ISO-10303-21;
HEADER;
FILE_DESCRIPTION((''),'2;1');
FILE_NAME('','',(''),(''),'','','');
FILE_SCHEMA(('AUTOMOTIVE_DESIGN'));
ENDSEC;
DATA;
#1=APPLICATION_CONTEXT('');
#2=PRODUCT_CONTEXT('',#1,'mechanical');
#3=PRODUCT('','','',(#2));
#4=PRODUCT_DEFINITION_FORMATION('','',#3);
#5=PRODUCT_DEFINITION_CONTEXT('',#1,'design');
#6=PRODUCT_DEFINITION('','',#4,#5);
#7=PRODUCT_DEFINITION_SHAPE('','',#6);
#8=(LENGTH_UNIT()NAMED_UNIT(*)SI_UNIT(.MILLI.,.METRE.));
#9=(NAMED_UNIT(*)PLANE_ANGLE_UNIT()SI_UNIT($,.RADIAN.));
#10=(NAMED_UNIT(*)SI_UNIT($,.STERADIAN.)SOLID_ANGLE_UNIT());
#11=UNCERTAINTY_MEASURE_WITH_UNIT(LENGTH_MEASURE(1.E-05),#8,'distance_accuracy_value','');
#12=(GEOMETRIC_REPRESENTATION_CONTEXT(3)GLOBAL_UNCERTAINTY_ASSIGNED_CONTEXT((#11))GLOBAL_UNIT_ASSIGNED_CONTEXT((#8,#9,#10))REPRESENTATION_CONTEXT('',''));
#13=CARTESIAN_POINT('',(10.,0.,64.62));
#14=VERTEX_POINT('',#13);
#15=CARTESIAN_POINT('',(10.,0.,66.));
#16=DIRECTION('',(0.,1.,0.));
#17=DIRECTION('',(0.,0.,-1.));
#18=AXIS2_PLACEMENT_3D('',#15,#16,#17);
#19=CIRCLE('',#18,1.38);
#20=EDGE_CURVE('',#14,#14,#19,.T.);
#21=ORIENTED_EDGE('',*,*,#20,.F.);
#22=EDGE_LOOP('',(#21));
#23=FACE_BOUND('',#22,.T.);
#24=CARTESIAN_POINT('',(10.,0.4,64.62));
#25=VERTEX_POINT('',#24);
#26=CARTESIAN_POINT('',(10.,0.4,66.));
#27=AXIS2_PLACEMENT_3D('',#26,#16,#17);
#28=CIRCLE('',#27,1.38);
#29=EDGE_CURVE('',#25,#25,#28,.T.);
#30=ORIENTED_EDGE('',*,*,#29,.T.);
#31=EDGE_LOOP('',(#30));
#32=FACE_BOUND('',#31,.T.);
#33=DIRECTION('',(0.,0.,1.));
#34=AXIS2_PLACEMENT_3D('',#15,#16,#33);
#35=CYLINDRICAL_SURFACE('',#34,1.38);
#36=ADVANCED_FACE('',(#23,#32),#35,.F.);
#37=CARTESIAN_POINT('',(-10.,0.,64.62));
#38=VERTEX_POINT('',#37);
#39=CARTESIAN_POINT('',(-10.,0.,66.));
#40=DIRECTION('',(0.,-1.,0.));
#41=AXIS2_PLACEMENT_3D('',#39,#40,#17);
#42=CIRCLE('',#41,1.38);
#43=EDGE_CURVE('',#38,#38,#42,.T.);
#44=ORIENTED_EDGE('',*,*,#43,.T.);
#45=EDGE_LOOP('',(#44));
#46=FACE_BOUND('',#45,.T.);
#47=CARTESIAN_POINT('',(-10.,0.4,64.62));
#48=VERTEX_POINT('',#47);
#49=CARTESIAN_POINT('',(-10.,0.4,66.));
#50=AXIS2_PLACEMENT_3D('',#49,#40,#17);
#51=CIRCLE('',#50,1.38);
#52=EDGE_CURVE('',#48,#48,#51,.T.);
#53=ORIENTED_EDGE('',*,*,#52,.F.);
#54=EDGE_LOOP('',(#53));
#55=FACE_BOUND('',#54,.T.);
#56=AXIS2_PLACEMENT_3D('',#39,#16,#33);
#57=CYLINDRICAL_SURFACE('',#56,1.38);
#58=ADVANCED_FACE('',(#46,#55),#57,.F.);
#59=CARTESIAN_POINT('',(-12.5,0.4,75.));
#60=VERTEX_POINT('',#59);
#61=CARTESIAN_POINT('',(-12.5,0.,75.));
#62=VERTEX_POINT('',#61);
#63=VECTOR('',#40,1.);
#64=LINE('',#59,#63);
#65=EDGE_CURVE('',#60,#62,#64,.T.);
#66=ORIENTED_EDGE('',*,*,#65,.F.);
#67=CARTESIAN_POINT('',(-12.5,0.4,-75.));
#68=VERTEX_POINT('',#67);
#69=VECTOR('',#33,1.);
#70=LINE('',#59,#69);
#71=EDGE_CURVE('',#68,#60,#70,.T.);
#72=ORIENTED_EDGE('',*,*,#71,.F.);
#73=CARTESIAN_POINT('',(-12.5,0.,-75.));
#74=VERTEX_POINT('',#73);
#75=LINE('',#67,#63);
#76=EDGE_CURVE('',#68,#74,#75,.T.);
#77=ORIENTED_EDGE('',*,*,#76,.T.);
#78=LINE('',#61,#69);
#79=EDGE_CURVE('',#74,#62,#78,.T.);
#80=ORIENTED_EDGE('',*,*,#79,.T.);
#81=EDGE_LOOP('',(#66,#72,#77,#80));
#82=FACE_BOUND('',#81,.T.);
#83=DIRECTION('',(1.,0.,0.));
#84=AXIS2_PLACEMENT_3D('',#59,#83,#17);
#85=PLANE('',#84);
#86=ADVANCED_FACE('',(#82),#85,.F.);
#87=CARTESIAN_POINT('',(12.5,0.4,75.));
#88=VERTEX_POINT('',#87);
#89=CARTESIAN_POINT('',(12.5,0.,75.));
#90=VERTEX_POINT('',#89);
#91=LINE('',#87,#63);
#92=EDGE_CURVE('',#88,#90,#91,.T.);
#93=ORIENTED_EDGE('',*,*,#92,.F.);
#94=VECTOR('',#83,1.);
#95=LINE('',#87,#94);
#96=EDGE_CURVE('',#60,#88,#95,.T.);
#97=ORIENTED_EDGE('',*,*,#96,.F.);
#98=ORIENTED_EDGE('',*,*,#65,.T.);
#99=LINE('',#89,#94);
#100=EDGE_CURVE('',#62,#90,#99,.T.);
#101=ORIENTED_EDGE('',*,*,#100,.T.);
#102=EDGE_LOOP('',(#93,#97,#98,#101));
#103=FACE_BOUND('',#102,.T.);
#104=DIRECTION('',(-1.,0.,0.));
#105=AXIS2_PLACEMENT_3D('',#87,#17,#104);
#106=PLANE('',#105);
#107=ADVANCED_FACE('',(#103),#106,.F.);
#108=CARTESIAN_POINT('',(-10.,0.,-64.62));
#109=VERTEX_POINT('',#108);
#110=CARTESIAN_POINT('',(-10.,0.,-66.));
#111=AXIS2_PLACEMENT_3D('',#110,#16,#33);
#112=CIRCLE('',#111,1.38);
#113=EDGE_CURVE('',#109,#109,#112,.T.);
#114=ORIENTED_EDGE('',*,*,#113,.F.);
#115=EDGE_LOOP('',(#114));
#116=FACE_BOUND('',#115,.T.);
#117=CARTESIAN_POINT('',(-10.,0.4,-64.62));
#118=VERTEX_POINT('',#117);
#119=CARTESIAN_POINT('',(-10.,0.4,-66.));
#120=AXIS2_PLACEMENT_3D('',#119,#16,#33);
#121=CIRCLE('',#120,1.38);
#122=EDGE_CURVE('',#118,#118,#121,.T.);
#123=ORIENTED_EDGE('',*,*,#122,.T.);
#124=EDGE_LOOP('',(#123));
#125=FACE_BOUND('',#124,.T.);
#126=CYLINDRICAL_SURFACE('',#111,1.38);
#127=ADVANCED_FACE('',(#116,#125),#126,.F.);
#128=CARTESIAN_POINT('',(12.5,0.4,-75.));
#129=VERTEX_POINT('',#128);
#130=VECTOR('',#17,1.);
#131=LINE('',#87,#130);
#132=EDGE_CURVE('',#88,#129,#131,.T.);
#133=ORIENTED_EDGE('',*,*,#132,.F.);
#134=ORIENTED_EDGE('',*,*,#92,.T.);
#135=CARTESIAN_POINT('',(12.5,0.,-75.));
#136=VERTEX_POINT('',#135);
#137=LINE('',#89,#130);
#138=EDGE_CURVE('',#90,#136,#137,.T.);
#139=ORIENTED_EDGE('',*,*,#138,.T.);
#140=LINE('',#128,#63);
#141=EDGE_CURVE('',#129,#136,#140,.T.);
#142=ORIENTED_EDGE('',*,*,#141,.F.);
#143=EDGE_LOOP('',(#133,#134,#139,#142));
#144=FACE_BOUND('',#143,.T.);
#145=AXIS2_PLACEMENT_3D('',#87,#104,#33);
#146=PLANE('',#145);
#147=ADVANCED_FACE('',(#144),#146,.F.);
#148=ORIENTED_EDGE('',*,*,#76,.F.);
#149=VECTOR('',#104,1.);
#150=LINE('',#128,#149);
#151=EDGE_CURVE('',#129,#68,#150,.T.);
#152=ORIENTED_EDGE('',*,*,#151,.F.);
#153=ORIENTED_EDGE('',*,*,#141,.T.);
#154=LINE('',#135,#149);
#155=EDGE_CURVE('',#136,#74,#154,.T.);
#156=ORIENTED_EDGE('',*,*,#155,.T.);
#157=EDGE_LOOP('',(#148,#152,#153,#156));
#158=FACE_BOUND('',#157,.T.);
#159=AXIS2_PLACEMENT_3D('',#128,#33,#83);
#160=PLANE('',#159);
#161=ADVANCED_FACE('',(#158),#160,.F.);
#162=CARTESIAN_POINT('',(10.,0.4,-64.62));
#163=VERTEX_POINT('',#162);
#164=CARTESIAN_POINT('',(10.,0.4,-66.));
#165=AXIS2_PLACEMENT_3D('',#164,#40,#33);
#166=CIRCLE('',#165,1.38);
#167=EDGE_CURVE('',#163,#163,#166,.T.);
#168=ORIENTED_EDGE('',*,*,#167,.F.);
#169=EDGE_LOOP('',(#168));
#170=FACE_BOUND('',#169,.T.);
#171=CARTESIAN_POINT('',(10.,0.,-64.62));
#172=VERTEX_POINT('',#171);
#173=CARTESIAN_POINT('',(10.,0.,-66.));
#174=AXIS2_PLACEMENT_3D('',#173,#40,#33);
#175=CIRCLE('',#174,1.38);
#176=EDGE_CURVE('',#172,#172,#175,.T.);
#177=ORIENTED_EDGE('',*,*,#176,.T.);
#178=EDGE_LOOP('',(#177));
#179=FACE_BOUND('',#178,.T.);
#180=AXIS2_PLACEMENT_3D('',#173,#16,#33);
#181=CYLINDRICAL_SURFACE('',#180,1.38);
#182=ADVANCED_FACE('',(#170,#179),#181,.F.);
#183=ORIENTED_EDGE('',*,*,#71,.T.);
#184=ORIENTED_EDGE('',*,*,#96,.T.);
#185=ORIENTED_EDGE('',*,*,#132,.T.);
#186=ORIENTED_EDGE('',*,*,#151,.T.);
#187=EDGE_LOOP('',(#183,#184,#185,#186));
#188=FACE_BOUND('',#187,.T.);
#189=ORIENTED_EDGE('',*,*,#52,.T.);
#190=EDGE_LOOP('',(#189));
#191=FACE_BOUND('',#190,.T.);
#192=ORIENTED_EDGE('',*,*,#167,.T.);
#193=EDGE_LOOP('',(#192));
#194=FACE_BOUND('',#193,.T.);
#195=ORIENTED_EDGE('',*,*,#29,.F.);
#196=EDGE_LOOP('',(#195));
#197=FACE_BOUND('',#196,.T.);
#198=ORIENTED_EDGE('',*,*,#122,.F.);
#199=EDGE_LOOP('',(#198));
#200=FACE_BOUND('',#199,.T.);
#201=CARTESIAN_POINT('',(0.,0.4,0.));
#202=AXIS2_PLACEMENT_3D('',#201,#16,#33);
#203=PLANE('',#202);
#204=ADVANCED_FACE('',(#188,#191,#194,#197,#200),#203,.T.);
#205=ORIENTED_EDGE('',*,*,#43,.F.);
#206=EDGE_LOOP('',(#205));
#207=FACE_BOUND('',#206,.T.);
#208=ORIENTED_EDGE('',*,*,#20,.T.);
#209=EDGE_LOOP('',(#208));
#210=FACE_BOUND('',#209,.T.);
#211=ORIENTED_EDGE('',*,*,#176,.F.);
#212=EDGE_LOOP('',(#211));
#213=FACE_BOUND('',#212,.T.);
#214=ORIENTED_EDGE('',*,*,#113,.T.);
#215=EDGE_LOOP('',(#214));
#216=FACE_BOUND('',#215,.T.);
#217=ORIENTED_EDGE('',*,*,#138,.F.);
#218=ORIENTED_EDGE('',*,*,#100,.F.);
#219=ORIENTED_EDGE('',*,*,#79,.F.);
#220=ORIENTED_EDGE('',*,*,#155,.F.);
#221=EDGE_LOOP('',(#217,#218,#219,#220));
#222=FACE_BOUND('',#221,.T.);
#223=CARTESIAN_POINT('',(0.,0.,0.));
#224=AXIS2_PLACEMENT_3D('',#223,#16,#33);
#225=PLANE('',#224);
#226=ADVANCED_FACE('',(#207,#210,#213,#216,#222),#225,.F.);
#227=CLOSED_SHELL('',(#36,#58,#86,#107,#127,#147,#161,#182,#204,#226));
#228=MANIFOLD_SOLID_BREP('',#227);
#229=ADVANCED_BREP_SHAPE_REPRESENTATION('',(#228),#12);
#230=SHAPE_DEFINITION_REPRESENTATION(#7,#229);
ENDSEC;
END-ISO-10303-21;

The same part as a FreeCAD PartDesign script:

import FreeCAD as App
import Part
import Sketcher
Q = App.Units.Quantity


def add_polygon(sketch, points):
    """Adds a closed chain of lines whose ends are joined by coincident constraints."""
    first, n = sketch.GeometryCount, len(points)
    for a, b in zip(points, points[1:] + points[:1]):
        sketch.addGeometry(Part.LineSegment(App.Vector(*a, 0), App.Vector(*b, 0)), False)
    for i in range(n):
        sketch.addConstraint(Sketcher.Constraint("Coincident", first + i, 2, first + (i + 1) % n, 1))

doc = App.newDocument("Part")
body = doc.addObject("PartDesign::Body", "Body")

# Sketch on XZ plane
sketch1 = body.newObject("Sketcher::SketchObject", "Sketch")
sketch1.AttachmentSupport = (doc.getObject("XZ_Plane"), [""])
sketch1.MapMode = "FlatFace"
add_polygon(sketch1, [(-12.5, -75), (-12.5, 75), (12.5, 75), (12.5, -75)])  # lines 0-3
sketch1.addConstraint([
    Sketcher.Constraint("Vertical", 0),
    Sketcher.Constraint("Horizontal", 1),
    Sketcher.Constraint("Vertical", 2),
    Sketcher.Constraint("Horizontal", 3),
    Sketcher.Constraint("Symmetric", 0, 2, 2, 2, -1, 1),
    Sketcher.Constraint("DistanceX", 1, 1, 1, 2, Q("25 mm")),
    Sketcher.Constraint("DistanceY", 0, 1, 0, 2, Q("150 mm")),
])
pad1 = body.newObject("PartDesign::Pad", "Pad")
pad1.Profile = sketch1
pad1.Length = 0.4
pad1.Reversed = True

# Sketch on XZ plane
sketch2 = body.newObject("Sketcher::SketchObject", "Sketch001")
sketch2.AttachmentSupport = (doc.getObject("XZ_Plane"), [""])
sketch2.MapMode = "FlatFace"
sketch2.AttachmentOffset = App.Placement(App.Vector(0, 0, -0.4), App.Rotation())
sketch2.addGeometry(Part.Circle(App.Vector(-10, -66, 0), App.Vector(0, 0, 1), 1.38), False)
sketch2.addConstraint([
    Sketcher.Constraint("Diameter", 0, Q("2.76 mm")),
    Sketcher.Constraint("DistanceX", 0, 3, -1, 1, Q("10 mm")),
    Sketcher.Constraint("DistanceY", 0, 3, -1, 1, Q("66 mm")),
])
pocket1 = body.newObject("PartDesign::Pocket", "Pocket")
pocket1.Profile = sketch2
pocket1.Length = 0.4
pocket1.Reversed = True
doc.recompute()

mirrored = body.newObject("PartDesign::Mirrored", "Mirrored")
mirrored.Originals = [pocket1]
mirrored.MirrorPlane = (doc.getObject("YZ_Plane"), [""])
body.Tip = mirrored
doc.recompute()

mirrored2 = body.newObject("PartDesign::Mirrored", "Mirrored001")
mirrored2.Originals = [pocket1]
mirrored2.MirrorPlane = (doc.getObject("XY_Plane"), [""])
body.Tip = mirrored2

# Sketch on XZ plane
sketch3 = body.newObject("Sketcher::SketchObject", "Sketch002")
sketch3.AttachmentSupport = (doc.getObject("XZ_Plane"), [""])
sketch3.MapMode = "FlatFace"
sketch3.AttachmentOffset = App.Placement(App.Vector(0, 0, -0.4), App.Rotation())
sketch3.addGeometry(Part.Circle(App.Vector(10, 66, 0), App.Vector(0, 0, 1), 1.38), False)
sketch3.addConstraint([
    Sketcher.Constraint("Diameter", 0, Q("2.76 mm")),
    Sketcher.Constraint("DistanceX", -1, 1, 0, 3, Q("10 mm")),
    Sketcher.Constraint("DistanceY", -1, 1, 0, 3, Q("66 mm")),
])
pocket2 = body.newObject("PartDesign::Pocket", "Pocket001")
pocket2.Profile = sketch3
pocket2.Length = 0.4
pocket2.Reversed = True

doc.recompute()
